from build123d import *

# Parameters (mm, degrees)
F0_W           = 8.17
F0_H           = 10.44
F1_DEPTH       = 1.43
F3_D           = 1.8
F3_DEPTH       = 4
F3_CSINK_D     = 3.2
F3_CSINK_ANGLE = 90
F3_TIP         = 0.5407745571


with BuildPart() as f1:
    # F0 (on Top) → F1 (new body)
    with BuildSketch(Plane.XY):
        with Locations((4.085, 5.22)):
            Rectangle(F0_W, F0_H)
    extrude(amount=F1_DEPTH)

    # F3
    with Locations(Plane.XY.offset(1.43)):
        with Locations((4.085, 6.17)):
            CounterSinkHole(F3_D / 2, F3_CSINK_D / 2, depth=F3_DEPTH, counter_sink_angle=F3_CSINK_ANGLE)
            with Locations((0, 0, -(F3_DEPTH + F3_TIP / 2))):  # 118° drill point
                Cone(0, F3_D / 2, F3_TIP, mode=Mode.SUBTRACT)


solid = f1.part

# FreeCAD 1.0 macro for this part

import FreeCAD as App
import Part
import Sketcher
from FreeCAD import Vector

doc = App.newDocument("Part")
params = doc.addObject("Spreadsheet::Sheet", "Params")
for row, (alias, value) in enumerate([
    ("sketch1_width", "8.17 mm"),
    ("sketch1_height", "10.44 mm"),
    ("pad1_length", "1.43 mm"),
    ("sketch2_diameter", "1.8 mm"),
    ("hole_diameter", "1.8 mm"),
    ("hole_depth", "4 mm"),
    ("hole_csink_diameter", "3.2 mm"),
], start=1):
    params.set(f"A{row}", alias)
    params.set(f"B{row}", "=" + value)
    params.setAlias(f"B{row}", alias)

body = doc.addObject("PartDesign::Body", "Body")

sketch1 = doc.addObject("Sketcher::SketchObject", "Sketch")
body.addObject(sketch1)
sketch1.AttachmentSupport = (doc.XY_Plane, [""])
sketch1.MapMode = "FlatFace"
sketch1.addGeometry([
    Part.LineSegment(Vector(0, 10.44, 0), Vector(0, 0, 0)),
    Part.LineSegment(Vector(0, 0, 0), Vector(8.17, 0, 0)),
    Part.LineSegment(Vector(8.17, 0, 0), Vector(8.17, 10.44, 0)),
    Part.LineSegment(Vector(8.17, 10.44, 0), Vector(0, 10.44, 0)),
], False)
sketch1.addConstraint([
    Sketcher.Constraint("Coincident", 0, 2, 1, 1),
    Sketcher.Constraint("Coincident", 1, 2, 2, 1),
    Sketcher.Constraint("Coincident", 2, 2, 3, 1),
    Sketcher.Constraint("Coincident", 3, 2, 0, 1),
    Sketcher.Constraint("Vertical", 0),
    Sketcher.Constraint("Horizontal", 1),
    Sketcher.Constraint("Vertical", 2),
    Sketcher.Constraint("Horizontal", 3),
    Sketcher.Constraint("Coincident", 0, 2, -1, 1),
    Sketcher.Constraint("DistanceX", 1, 1, 1, 2, 8.17),
    Sketcher.Constraint("DistanceY", 0, 2, 0, 1, 10.44),
])
sketch1.setExpression("Constraints[9]", "Params.sketch1_width")
sketch1.setExpression("Constraints[10]", "Params.sketch1_height")
pad1 = doc.addObject("PartDesign::Pad", "Pad")
body.addObject(pad1)
pad1.Profile = sketch1
pad1.setExpression("Length", "Params.pad1_length")

sketch2 = doc.addObject("Sketcher::SketchObject", "Sketch001")
body.addObject(sketch2)
sketch2.AttachmentSupport = (doc.XY_Plane, [""])
sketch2.MapMode = "FlatFace"
sketch2.AttachmentOffset = App.Placement(Vector(0, 0, 1.43), App.Rotation())
sketch2.addGeometry(Part.Circle(Vector(4.085, 6.17, 0), Vector(0, 0, 1), 0.9), False)
sketch2.addConstraint([
    Sketcher.Constraint("Diameter", 0, 1.8),
    Sketcher.Constraint("DistanceY", -1, 1, 0, 3, 6.17),
    Sketcher.Constraint("DistanceX", -1, 1, 0, 3, 4.085),
])
sketch2.setExpression("Constraints[0]", "Params.sketch2_diameter")
doc.recompute()
hole = doc.addObject("PartDesign::Hole", "Hole")
body.addObject(hole)
hole.Profile = sketch2
hole.ThreadType = "None"
hole.setExpression("Diameter", "Params.hole_diameter")
hole.DepthType = "Dimension"
hole.setExpression("Depth", "Params.hole_depth")
hole.DrillPoint = "Angled"
hole.DrillPointAngle = 118
hole.HoleCutType = "Countersink"
hole.setExpression("HoleCutDiameter", "Params.hole_csink_diameter")
hole.HoleCutCountersinkAngle = 90

doc.recompute()
